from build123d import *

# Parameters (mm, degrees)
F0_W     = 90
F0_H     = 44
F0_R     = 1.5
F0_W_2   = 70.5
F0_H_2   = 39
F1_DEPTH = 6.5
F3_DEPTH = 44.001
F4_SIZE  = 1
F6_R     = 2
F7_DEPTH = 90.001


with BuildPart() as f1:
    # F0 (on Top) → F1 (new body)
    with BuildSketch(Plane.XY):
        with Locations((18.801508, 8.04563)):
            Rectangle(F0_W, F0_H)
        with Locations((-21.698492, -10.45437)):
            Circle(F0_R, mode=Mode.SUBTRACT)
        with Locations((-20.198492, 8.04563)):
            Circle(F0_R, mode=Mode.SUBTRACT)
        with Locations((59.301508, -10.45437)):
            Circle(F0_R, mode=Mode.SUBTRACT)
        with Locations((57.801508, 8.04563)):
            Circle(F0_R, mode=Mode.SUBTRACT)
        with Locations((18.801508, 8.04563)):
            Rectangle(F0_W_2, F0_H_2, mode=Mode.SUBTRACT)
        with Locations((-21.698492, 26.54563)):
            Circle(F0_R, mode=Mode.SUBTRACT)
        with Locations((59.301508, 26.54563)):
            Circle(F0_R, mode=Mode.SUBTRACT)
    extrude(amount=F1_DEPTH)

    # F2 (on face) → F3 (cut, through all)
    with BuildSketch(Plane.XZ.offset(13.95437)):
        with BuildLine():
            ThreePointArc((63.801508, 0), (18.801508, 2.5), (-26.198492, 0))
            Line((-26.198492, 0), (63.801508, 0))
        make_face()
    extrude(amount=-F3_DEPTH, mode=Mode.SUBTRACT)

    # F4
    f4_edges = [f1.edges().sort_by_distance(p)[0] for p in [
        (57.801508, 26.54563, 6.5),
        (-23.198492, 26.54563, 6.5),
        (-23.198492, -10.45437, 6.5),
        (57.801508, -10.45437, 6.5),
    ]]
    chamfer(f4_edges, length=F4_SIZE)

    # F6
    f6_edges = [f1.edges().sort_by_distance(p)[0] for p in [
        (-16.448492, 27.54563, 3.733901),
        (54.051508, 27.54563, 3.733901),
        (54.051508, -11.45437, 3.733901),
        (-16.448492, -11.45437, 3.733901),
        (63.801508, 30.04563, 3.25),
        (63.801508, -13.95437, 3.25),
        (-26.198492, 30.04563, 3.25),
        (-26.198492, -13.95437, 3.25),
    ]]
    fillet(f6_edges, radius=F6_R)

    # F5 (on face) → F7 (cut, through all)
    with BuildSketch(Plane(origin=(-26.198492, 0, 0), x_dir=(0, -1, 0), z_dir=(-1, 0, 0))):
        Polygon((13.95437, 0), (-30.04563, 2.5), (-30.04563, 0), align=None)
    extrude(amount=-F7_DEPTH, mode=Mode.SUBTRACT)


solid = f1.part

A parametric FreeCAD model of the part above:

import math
import FreeCAD as App
import Part
import Sketcher
from FreeCAD import Vector
Q = App.Units.Quantity


def edges_at(feature, points):
    """Names of the edges that pass closest to the given points."""
    edges = feature.Shape.Edges
    near = lambda p: min(range(len(edges)), key=lambda i: edges[i].distToShape(Part.Vertex(*p))[0])
    return sorted({f"Edge{near(p) + 1}" for p in points})

doc = App.newDocument("Part")
body = doc.addObject("PartDesign::Body", "Body")

sketch1 = body.newObject("Sketcher::SketchObject", "Sketch")
sketch1.AttachmentSupport = (doc.getObject("XY_Plane"), [""])
sketch1.MapMode = "FlatFace"
sketch1.addGeometry([
    Part.LineSegment(Vector(-26.2, 30, 0), Vector(-26.2, -14, 0)),
    Part.LineSegment(Vector(-26.2, -14, 0), Vector(63.8, -14, 0)),
    Part.LineSegment(Vector(63.8, -14, 0), Vector(63.8, 30, 0)),
    Part.LineSegment(Vector(63.8, 30, 0), Vector(-26.2, 30, 0)),
    Part.Circle(Vector(-21.7, -10.5, 0), Vector(0, 0, 1), 1.5),
    Part.Circle(Vector(59.3, -10.5, 0), Vector(0, 0, 1), 1.5),
    Part.Circle(Vector(-20.2, 8, 0), Vector(0, 0, 1), 1.5),
    Part.Circle(Vector(-21.7, 26.5, 0), Vector(0, 0, 1), 1.5),
    Part.LineSegment(Vector(54.1, -11.5, 0), Vector(-16.4, -11.5, 0)),
    Part.LineSegment(Vector(-16.4, -11.5, 0), Vector(-16.4, 27.5, 0)),
    Part.LineSegment(Vector(-16.4, 27.5, 0), Vector(54.1, 27.5, 0)),
    Part.LineSegment(Vector(54.1, 27.5, 0), Vector(54.1, -11.5, 0)),
    Part.Circle(Vector(57.8, 8, 0), Vector(0, 0, 1), 1.5),
    Part.Circle(Vector(59.3, 26.5, 0), Vector(0, 0, 1), 1.5),
], False)
sketch1.addConstraint([
    Sketcher.Constraint("Coincident", 0, 2, 1, 1),
    Sketcher.Constraint("Coincident", 1, 2, 2, 1),
    Sketcher.Constraint("Coincident", 2, 2, 3, 1),
    Sketcher.Constraint("Coincident", 3, 2, 0, 1),
    Sketcher.Constraint("Coincident", 8, 2, 9, 1),
    Sketcher.Constraint("Coincident", 9, 2, 10, 1),
    Sketcher.Constraint("Coincident", 10, 2, 11, 1),
    Sketcher.Constraint("Coincident", 11, 2, 8, 1),
    Sketcher.Constraint("Vertical", 0),
    Sketcher.Constraint("Horizontal", 1),
    Sketcher.Constraint("Vertical", 2),
    Sketcher.Constraint("Horizontal", 3),
    Sketcher.Constraint("Horizontal", 8),
    Sketcher.Constraint("Vertical", 9),
    Sketcher.Constraint("Horizontal", 10),
    Sketcher.Constraint("Vertical", 11),
    Sketcher.Constraint("Equal", 4, 5),
    Sketcher.Constraint("Equal", 5, 6),
    Sketcher.Constraint("Equal", 6, 7),
    Sketcher.Constraint("Equal", 7, 12),
    Sketcher.Constraint("Equal", 12, 13),
    Sketcher.Constraint("Horizontal", 4, 3, 5, 3),
    Sketcher.Constraint("Horizontal", 6, 3, 12, 3),
    Sketcher.Constraint("Horizontal", 7, 3, 13, 3),
    Sketcher.Constraint("Vertical", 4, 3, 7, 3),
    Sketcher.Constraint("Vertical", 5, 3, 13, 3),
    Sketcher.Constraint("Diameter", 4, Q("3 mm")),
    Sketcher.Constraint("DistanceX", 1, 1, 1, 2, Q("90 mm")),
    Sketcher.Constraint("DistanceY", 0, 2, 0, 1, Q("44 mm")),
    Sketcher.Constraint("DistanceY", 9, 1, 9, 2, Q("39 mm")),
    Sketcher.Constraint("DistanceX", 8, 2, 8, 1, Q("70.5 mm")),
    Sketcher.Constraint("DistanceX", 4, 3, 5, 3, Q("81 mm")),
    Sketcher.Constraint("DistanceY", 4, 3, 7, 3, Q("37 mm")),
    Sketcher.Constraint("DistanceX", 6, 3, 12, 3, Q("78 mm")),
    Sketcher.Constraint("DistanceX", 0, 2, 6, 3, Q("6 mm")),
    Sketcher.Constraint("DistanceY", 0, 2, 6, 3, Q("22 mm")),
    Sketcher.Constraint("DistanceY", 8, 2, 4, 3, Q("1 mm")),
    Sketcher.Constraint("DistanceX", 4, 3, 6, 3, Q("1.5 mm")),
    Sketcher.Constraint("DistanceY", 4, 3, 6, 3, Q("18.5 mm")),
    Sketcher.Constraint("DistanceX", 4, 3, 8, 2, Q("5.25 mm")),
    Sketcher.Constraint("DistanceY", 4, 3, -1, 1, Q("10.45437 mm")),
    Sketcher.Constraint("DistanceX", 4, 3, -1, 1, Q("21.698492 mm")),
])
pad1 = body.newObject("PartDesign::Pad", "Pad")
pad1.Profile = sketch1
pad1.Length = 6.5

sketch2 = body.newObject("Sketcher::SketchObject", "Sketch001")
sketch2.AttachmentSupport = (doc.getObject("XZ_Plane"), [""])
sketch2.MapMode = "FlatFace"
sketch2.AttachmentOffset = App.Placement(Vector(0, 0, 13.95437), App.Rotation())
sketch2.addGeometry([
    Part.ArcOfCircle(Part.Circle(Vector(19, -404, 0), Vector(0, 0, 1), 406), math.radians(83.64), math.radians(96.36)),
    Part.LineSegment(Vector(-26, 0, 0), Vector(64, 0, 0)),
], False)
sketch2.addConstraint([
    Sketcher.Constraint("Coincident", 0, 1, 1, 2),
    Sketcher.Constraint("Coincident", 1, 1, 0, 2),
    Sketcher.Constraint("Horizontal", 1),
    Sketcher.Constraint("PointOnObject", 0, 1, -1),
    Sketcher.Constraint("DistanceX", 1, 1, 1, 2, Q("90 mm")),
    Sketcher.Constraint("Radius", 0, Q("406.25 mm")),
    Sketcher.Constraint("DistanceX", -1, 1, 0, 3, Q("18.801508 mm")),
])
pocket1 = body.newObject("PartDesign::Pocket", "Pocket")
pocket1.Profile = sketch2
pocket1.Type = "ThroughAll"
doc.recompute()

chamfer = body.newObject("PartDesign::Chamfer", "Chamfer")
chamfer.Base = (pocket1, edges_at(pocket1, [
    (57.802, 26.546, 6.5),
    (-23.198, 26.546, 6.5),
    (-23.198, -10.454, 6.5),
    (57.802, -10.454, 6.5),
]))
chamfer.Size = 1
doc.recompute()

fillet = body.newObject("PartDesign::Fillet", "Fillet")
fillet.Base = (chamfer, edges_at(chamfer, [
    (-16.448, 27.546, 3.734),
    (54.052, 27.546, 3.734),
    (54.052, -11.454, 3.734),
    (-16.448, -11.454, 3.734),
    (63.802, 30.046, 3.25),
    (63.802, -13.954, 3.25),
    (-26.198, 30.046, 3.25),
    (-26.198, -13.954, 3.25),
]))
fillet.Radius = 2

sketch3 = body.newObject("Sketcher::SketchObject", "Sketch002")
sketch3.AttachmentSupport = (doc.getObject("YZ_Plane"), [""])
sketch3.MapMode = "FlatFace"
sketch3.AttachmentOffset = App.Placement(Vector(0, 0, -26.198492), App.Rotation())
sketch3.addGeometry([
    Part.LineSegment(Vector(-14, 0, 0), Vector(30, 2.5, 0)),
    Part.LineSegment(Vector(30, 2.5, 0), Vector(30, 0, 0)),
    Part.LineSegment(Vector(30, 0, 0), Vector(-14, 0, 0)),
], False)
sketch3.addConstraint([
    Sketcher.Constraint("Coincident", 0, 2, 1, 1),
    Sketcher.Constraint("Coincident", 1, 2, 2, 1),
    Sketcher.Constraint("Coincident", 2, 2, 0, 1),
    Sketcher.Constraint("Vertical", 1),
    Sketcher.Constraint("Horizontal", 2),
    Sketcher.Constraint("PointOnObject", 1, 2, -1),
    Sketcher.Constraint("DistanceX", 2, 2, 2, 1, Q("44 mm")),
    Sketcher.Constraint("DistanceY", 1, 2, 1, 1, Q("2.5 mm")),
    Sketcher.Constraint("DistanceX", -1, 1, 0, 2, Q("30.04563 mm")),
])
pocket2 = body.newObject("PartDesign::Pocket", "Pocket001")
pocket2.Profile = sketch3
pocket2.Type = "ThroughAll"
pocket2.Reversed = True

doc.recompute()
